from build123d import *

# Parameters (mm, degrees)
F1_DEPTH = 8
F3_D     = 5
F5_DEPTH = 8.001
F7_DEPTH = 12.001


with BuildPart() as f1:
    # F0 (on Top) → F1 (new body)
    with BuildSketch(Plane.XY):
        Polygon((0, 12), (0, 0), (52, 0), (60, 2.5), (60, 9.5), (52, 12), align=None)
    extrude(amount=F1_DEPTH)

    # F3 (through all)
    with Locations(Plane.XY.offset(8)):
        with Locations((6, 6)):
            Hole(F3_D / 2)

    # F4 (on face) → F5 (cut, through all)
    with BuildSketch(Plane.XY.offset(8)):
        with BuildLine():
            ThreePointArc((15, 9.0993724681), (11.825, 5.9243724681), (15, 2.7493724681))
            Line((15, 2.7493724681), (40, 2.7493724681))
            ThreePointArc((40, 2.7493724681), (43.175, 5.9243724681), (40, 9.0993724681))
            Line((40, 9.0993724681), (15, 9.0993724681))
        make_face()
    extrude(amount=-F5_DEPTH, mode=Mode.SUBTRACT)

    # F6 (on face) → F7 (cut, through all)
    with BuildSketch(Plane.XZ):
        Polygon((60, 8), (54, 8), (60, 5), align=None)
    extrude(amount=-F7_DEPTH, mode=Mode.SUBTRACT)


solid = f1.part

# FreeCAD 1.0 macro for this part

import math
import FreeCAD as App
import Part
import Sketcher

V = App.Vector


def add_polygon(sketch, points):
    """Adds a closed chain of lines whose ends are joined by coincident constraints."""
    first, n = sketch.GeometryCount, len(points)
    for a, b in zip(points, points[1:] + points[:1]):
        sketch.addGeometry(Part.LineSegment(App.Vector(*a, 0), App.Vector(*b, 0)), False)
    for i in range(n):
        sketch.addConstraint(Sketcher.Constraint("Coincident", first + i, 2, first + (i + 1) % n, 1))

doc = App.newDocument("Part")
body = doc.addObject("PartDesign::Body", "Body")

# Sketch on XY plane
sketch1 = doc.addObject("Sketcher::SketchObject", "Sketch")
body.addObject(sketch1)
sketch1.AttachmentSupport = (doc.XY_Plane, [""])
sketch1.MapMode = "FlatFace"
add_polygon(sketch1, [(0, 12), (0, 0), (52, 0), (60, 2), (60, 10), (52, 12)])  # lines 0-5
sketch1.addConstraint(Sketcher.Constraint("Vertical", 0))
sketch1.addConstraint(Sketcher.Constraint("Horizontal", 1))
sketch1.addConstraint(Sketcher.Constraint("Vertical", 3))
sketch1.addConstraint(Sketcher.Constraint("Horizontal", 5))
sketch1.addConstraint(Sketcher.Constraint("Coincident", 0, 2, -1, 1))
sketch1.addConstraint(Sketcher.Constraint("Vertical", 1, 2, 4, 2))
sketch1.addConstraint(Sketcher.Constraint("Equal", 2, 4))
sketch1.addConstraint(Sketcher.Constraint("DistanceX", 1, 1, 1, 2, 52.0))
sketch1.addConstraint(Sketcher.Constraint("DistanceY", 0, 2, 0, 1, 12.0))
sketch1.addConstraint(Sketcher.Constraint("DistanceY", 3, 1, 3, 2, 7.0))
sketch1.addConstraint(Sketcher.Constraint("DistanceX", -1, 1, 2, 2, 60.0))
pad1 = doc.addObject("PartDesign::Pad", "Pad")
body.addObject(pad1)
pad1.Profile = sketch1
pad1.Length = 8

# Sketch on XY plane
sketch2 = doc.addObject("Sketcher::SketchObject", "Sketch001")
body.addObject(sketch2)
sketch2.AttachmentSupport = (doc.XY_Plane, [""])
sketch2.MapMode = "FlatFace"
sketch2.AttachmentOffset = App.Placement(V(0, 0, 8), App.Rotation())
sketch2.addGeometry(Part.Circle(V(6, 6, 0), V(0, 0, 1), 2.5), False)
sketch2.addConstraint(Sketcher.Constraint("Diameter", 0, 5.0))
sketch2.addConstraint(Sketcher.Constraint("DistanceX", -1, 1, 0, 3, 6.0))
sketch2.addConstraint(Sketcher.Constraint("DistanceY", -1, 1, 0, 3, 6.0))
doc.recompute()
hole = doc.addObject("PartDesign::Hole", "Hole")
body.addObject(hole)
hole.Profile = sketch2
hole.ThreadType = "None"
hole.Diameter = 5
hole.DepthType = "ThroughAll"

# Sketch on XY plane
sketch3 = doc.addObject("Sketcher::SketchObject", "Sketch002")
body.addObject(sketch3)
sketch3.AttachmentSupport = (doc.XY_Plane, [""])
sketch3.MapMode = "FlatFace"
sketch3.AttachmentOffset = App.Placement(V(0, 0, 8), App.Rotation())
sketch3.addGeometry(Part.ArcOfCircle(Part.Circle(V(15, 5.9, 0), V(0, 0, 1), 3.2), math.radians(90), math.radians(270)), False)
sketch3.addGeometry(Part.LineSegment(V(15, 2.7, 0), V(40, 2.7, 0)), False)
sketch3.addGeometry(Part.ArcOfCircle(Part.Circle(V(40, 5.9, 0), V(0, 0, 1), 3.2), math.radians(-90), math.radians(90)), False)
sketch3.addGeometry(Part.LineSegment(V(40, 9.1, 0), V(15, 9.1, 0)), False)
sketch3.addConstraint(Sketcher.Constraint("Tangent", 0, 2, 1, 1))
sketch3.addConstraint(Sketcher.Constraint("Tangent", 1, 2, 2, 1))
sketch3.addConstraint(Sketcher.Constraint("Tangent", 2, 2, 3, 1))
sketch3.addConstraint(Sketcher.Constraint("Tangent", 3, 2, 0, 1))
sketch3.addConstraint(Sketcher.Constraint("Horizontal", 1))
sketch3.addConstraint(Sketcher.Constraint("Horizontal", 3))
sketch3.addConstraint(Sketcher.Constraint("DistanceX", 1, 1, 1, 2, 25.0))
sketch3.addConstraint(Sketcher.Constraint("DistanceX", -1, 1, 0, 3, 15.0))
sketch3.addConstraint(Sketcher.Constraint("Radius", 0, 3.175))
sketch3.addConstraint(Sketcher.Constraint("DistanceY", -1, 1, 0, 3, 5.924372))
pocket1 = doc.addObject("PartDesign::Pocket", "Pocket")
body.addObject(pocket1)
pocket1.Profile = sketch3
pocket1.Type = "ThroughAll"

# Sketch on XZ plane
sketch4 = doc.addObject("Sketcher::SketchObject", "Sketch003")
body.addObject(sketch4)
sketch4.AttachmentSupport = (doc.XZ_Plane, [""])
sketch4.MapMode = "FlatFace"
add_polygon(sketch4, [(60, 8), (54, 8), (60, 5)])  # lines 0-2
sketch4.addConstraint(Sketcher.Constraint("Horizontal", 0))
sketch4.addConstraint(Sketcher.Constraint("Vertical", 2))
sketch4.addConstraint(Sketcher.Constraint("DistanceX", 0, 2, 0, 1, 6.0))
sketch4.addConstraint(Sketcher.Constraint("DistanceY", 2, 1, 2, 2, 3.0))
sketch4.addConstraint(Sketcher.Constraint("DistanceX", -1, 1, 0, 2, 54.0))
sketch4.addConstraint(Sketcher.Constraint("DistanceY", -1, 1, 0, 2, 8.0))
pocket2 = doc.addObject("PartDesign::Pocket", "Pocket001")
body.addObject(pocket2)
pocket2.Profile = sketch4
pocket2.Type = "ThroughAll"

doc.recompute()
